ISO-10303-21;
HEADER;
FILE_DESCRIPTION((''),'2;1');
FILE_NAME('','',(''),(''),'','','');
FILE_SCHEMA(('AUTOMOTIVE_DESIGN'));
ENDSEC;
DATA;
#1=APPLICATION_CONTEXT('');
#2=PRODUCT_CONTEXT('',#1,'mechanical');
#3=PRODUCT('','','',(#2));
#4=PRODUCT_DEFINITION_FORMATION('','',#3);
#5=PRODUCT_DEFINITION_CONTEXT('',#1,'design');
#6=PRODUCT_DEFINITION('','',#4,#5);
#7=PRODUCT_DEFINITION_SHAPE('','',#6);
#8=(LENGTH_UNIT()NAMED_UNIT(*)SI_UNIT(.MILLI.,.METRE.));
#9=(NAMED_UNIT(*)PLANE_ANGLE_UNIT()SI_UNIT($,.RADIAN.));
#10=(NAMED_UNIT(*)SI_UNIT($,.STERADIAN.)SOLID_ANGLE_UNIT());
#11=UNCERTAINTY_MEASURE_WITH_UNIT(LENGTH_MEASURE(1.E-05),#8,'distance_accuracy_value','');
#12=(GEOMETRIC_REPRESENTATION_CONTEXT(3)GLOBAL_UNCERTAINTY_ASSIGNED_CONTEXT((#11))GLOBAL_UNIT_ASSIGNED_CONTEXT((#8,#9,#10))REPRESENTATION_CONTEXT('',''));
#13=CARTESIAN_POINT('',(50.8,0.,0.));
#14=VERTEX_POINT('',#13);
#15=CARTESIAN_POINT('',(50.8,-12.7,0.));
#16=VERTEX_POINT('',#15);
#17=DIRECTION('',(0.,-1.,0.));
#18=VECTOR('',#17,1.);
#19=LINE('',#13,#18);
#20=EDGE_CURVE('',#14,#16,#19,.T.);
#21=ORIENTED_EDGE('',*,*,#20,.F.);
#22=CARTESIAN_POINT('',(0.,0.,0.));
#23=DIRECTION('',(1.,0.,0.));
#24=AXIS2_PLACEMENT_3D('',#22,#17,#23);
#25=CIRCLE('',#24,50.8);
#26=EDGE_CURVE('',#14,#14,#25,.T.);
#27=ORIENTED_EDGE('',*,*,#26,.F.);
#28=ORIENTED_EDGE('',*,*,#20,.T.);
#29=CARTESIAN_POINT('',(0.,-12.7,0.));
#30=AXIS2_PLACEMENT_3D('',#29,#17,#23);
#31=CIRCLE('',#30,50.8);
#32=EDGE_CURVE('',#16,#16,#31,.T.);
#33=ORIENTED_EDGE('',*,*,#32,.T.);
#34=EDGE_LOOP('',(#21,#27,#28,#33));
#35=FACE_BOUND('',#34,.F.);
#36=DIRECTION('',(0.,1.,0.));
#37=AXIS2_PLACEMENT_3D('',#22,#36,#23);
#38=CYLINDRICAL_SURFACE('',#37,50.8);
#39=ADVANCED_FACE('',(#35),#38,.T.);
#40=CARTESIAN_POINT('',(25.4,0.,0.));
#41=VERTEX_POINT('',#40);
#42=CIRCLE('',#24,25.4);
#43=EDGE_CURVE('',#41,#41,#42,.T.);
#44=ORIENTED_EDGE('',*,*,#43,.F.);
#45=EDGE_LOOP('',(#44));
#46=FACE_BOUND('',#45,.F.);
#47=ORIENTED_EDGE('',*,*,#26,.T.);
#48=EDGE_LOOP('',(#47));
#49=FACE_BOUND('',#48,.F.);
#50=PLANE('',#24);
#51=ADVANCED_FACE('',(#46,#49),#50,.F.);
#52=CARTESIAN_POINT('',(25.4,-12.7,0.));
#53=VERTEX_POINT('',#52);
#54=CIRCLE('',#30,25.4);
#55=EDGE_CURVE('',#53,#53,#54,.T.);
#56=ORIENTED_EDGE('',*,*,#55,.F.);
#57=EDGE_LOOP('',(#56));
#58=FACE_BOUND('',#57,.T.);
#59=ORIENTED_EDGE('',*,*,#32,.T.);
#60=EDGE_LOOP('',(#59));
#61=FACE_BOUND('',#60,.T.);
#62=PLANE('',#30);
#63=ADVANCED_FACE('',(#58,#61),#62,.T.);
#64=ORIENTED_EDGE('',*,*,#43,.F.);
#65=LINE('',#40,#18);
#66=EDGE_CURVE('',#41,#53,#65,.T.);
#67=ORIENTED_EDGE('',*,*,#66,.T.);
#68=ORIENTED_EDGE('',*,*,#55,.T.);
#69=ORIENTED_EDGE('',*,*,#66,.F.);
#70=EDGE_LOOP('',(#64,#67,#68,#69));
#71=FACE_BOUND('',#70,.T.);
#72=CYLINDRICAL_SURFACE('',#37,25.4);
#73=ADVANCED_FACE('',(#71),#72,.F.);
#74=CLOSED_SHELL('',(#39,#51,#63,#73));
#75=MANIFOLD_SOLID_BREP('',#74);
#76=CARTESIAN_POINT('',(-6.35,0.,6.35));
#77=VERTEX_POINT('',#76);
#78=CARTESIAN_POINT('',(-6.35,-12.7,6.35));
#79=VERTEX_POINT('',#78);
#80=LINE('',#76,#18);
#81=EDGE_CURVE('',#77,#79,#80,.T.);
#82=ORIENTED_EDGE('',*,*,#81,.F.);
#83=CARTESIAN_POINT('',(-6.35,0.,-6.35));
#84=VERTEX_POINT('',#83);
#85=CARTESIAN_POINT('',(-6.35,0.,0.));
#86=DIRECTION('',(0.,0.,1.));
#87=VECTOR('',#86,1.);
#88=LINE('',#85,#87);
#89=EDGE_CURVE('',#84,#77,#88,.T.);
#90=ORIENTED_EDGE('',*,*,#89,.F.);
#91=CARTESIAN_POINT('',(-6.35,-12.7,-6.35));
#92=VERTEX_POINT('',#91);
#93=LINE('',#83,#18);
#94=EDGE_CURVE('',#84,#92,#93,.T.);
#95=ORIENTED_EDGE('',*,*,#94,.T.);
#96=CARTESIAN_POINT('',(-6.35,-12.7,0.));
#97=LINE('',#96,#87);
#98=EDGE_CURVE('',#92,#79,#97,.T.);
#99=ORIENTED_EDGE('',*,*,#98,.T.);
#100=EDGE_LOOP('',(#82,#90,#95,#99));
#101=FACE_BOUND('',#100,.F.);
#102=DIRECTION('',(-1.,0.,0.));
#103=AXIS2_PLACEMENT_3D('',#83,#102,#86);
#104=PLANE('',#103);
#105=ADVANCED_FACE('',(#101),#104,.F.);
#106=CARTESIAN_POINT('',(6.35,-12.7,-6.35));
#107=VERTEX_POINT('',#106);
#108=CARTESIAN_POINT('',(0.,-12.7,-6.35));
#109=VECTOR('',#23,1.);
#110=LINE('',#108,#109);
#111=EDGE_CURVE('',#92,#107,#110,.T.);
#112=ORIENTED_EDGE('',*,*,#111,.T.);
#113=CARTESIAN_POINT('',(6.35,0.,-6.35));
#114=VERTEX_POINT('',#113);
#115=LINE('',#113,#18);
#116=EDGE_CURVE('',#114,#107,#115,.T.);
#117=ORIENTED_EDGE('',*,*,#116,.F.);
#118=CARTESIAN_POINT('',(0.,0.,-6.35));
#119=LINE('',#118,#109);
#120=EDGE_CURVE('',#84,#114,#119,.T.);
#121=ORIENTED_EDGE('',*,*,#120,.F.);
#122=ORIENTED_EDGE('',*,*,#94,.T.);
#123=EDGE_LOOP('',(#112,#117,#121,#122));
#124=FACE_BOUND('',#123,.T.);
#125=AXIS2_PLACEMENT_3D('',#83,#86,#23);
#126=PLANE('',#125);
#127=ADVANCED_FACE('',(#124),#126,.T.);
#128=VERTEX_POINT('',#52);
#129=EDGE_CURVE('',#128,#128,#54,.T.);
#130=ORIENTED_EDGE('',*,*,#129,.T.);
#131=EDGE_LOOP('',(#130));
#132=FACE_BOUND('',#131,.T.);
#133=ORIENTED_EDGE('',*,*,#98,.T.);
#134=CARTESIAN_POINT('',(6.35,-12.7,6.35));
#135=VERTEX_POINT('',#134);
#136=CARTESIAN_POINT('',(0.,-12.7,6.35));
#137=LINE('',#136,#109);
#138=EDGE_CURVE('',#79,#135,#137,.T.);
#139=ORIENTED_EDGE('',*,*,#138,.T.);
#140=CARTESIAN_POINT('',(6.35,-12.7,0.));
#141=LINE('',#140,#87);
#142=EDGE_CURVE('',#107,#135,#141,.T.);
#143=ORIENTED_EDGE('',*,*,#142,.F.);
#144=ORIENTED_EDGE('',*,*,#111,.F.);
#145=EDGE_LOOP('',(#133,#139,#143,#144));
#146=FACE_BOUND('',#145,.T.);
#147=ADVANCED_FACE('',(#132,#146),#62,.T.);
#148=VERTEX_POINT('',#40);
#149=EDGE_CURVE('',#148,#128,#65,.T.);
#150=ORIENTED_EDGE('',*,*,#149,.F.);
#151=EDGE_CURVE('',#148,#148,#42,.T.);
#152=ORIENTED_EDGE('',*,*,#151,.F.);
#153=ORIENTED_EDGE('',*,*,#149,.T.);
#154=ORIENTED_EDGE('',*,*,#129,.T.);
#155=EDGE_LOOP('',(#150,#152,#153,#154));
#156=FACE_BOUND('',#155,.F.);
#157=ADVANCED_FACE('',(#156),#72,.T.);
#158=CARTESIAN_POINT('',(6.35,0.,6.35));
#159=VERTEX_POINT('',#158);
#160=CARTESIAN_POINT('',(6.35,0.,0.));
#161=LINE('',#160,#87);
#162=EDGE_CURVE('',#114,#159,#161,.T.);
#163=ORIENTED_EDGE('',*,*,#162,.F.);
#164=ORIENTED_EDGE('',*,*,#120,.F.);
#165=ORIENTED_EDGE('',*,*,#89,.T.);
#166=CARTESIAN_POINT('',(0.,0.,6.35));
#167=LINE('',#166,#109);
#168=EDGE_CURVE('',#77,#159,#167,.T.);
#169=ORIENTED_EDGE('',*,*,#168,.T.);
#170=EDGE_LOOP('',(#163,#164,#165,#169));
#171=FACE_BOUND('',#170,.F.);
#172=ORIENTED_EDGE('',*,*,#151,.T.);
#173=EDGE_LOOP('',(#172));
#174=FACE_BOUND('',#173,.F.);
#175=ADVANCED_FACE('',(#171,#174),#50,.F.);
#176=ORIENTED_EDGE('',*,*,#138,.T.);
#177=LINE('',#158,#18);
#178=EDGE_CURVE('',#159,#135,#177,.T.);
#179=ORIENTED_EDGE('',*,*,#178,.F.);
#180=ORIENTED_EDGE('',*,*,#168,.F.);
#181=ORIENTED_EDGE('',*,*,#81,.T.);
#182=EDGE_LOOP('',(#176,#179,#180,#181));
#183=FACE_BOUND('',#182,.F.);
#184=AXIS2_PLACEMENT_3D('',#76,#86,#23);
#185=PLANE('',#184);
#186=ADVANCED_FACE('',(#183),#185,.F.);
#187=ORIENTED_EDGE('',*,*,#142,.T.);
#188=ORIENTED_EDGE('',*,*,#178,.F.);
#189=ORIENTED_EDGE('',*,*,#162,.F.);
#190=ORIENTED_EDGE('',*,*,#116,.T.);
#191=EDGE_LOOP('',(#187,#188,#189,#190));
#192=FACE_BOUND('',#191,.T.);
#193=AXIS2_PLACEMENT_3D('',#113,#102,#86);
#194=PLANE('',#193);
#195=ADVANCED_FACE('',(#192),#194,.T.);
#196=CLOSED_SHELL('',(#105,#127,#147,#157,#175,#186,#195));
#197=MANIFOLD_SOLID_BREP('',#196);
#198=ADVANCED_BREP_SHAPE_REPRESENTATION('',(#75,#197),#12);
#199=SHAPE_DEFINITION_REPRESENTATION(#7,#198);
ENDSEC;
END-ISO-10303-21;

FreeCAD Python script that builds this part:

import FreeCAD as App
import Part
import Sketcher
from FreeCAD import Vector
Q = App.Units.Quantity

doc = App.newDocument("Part")
body = doc.addObject("PartDesign::Body", "Body")

# Sketch on XZ plane
sketch1 = body.newObject("Sketcher::SketchObject", "Sketch")
sketch1.AttachmentSupport = (doc.getObject("XZ_Plane"), [""])
sketch1.MapMode = "FlatFace"
sketch1.addGeometry([
    Part.Circle(Vector(0, 0, 0), Vector(0, 0, 1), 51),
    Part.Circle(Vector(0, 0, 0), Vector(0, 0, 1), 25),
], False)
sketch1.addConstraint([
    Sketcher.Constraint("Coincident", 0, 3, -1, 1),
    Sketcher.Constraint("Coincident", 1, 3, -1, 1),
    Sketcher.Constraint("Diameter", 0, Q("4 in")),
    Sketcher.Constraint("Diameter", 1, Q("2 in")),
])
pad1 = body.newObject("PartDesign::Pad", "Pad")
pad1.Profile = sketch1
pad1.Length = Q("0.5 in")
body2 = doc.addObject("PartDesign::Body", "Body001")

# Sketch on XZ plane
sketch2 = body2.newObject("Sketcher::SketchObject", "Sketch001")
sketch2.AttachmentSupport = (doc.getObject("XZ_Plane001"), [""])
sketch2.MapMode = "FlatFace"
sketch2.addGeometry([
    Part.Circle(Vector(0, 0, 0), Vector(0, 0, 1), 25),  # 0
    Part.LineSegment(Vector(6, -6, 0), Vector(-6, -6, 0)),  # 1
    Part.LineSegment(Vector(-6, -6, 0), Vector(-6, 6, 0)),  # 2
    Part.LineSegment(Vector(-6, 6, 0), Vector(6, 6, 0)),  # 3
    Part.LineSegment(Vector(6, 6, 0), Vector(6, -6, 0)),  # 4
], False)
sketch2.addConstraint([
    Sketcher.Constraint("Coincident", 1, 2, 2, 1),
    Sketcher.Constraint("Coincident", 2, 2, 3, 1),
    Sketcher.Constraint("Coincident", 3, 2, 4, 1),
    Sketcher.Constraint("Coincident", 4, 2, 1, 1),
    Sketcher.Constraint("Horizontal", 1),
    Sketcher.Constraint("Vertical", 2),
    Sketcher.Constraint("Horizontal", 3),
    Sketcher.Constraint("Vertical", 4),
    Sketcher.Constraint("Coincident", 0, 3, -1, 1),
    Sketcher.Constraint("Symmetric", 1, 2, 3, 2, -1, 1),
    Sketcher.Constraint("Equal", 3, 2),
    Sketcher.Constraint("Diameter", 0, Q("2 in")),
    Sketcher.Constraint("DistanceX", 1, 2, 1, 1, Q("0.5 in")),
])
pad2 = body2.newObject("PartDesign::Pad", "Pad001")
pad2.Profile = sketch2
pad2.Length = Q("0.5 in")

doc.recompute()
